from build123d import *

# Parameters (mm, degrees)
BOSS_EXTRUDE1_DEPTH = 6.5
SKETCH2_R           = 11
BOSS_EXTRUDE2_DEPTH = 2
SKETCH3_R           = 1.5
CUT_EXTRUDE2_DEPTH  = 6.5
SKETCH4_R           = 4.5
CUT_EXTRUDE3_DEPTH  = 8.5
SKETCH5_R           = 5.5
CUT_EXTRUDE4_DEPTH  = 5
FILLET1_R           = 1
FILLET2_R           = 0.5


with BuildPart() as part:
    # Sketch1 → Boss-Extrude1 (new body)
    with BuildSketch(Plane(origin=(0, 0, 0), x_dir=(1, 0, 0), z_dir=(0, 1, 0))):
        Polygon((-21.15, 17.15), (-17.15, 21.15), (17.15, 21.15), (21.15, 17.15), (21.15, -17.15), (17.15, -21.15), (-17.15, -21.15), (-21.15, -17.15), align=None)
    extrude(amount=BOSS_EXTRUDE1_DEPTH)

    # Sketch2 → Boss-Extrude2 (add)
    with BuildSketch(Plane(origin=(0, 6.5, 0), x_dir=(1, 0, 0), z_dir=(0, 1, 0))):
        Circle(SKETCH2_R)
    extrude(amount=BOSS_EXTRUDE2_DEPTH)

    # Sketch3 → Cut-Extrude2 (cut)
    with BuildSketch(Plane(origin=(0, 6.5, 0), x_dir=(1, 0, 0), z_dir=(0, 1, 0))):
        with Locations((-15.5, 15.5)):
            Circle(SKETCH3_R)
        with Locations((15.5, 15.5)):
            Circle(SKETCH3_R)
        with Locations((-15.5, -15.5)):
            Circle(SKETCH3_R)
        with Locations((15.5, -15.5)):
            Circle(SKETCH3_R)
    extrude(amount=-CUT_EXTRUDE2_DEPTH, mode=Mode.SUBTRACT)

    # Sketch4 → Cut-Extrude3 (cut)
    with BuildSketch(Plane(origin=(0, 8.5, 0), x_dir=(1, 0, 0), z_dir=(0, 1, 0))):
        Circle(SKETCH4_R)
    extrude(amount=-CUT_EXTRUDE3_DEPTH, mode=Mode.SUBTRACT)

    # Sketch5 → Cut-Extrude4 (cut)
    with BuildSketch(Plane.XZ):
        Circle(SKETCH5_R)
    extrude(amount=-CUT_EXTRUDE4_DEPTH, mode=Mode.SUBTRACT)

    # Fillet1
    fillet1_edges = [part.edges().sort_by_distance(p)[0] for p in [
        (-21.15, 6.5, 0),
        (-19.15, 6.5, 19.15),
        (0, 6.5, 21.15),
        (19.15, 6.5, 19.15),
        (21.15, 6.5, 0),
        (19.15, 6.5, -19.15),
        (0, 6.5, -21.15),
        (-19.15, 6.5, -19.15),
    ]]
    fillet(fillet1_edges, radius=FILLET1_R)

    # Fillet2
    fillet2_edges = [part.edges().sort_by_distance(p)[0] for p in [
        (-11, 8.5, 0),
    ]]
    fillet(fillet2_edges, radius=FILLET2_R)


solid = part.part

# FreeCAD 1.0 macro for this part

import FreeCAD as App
import Part
import Sketcher

V = App.Vector
Q = App.Units.Quantity


def edges_at(feature, points):
    """Names of the edges that pass closest to the given points."""
    edges = feature.Shape.Edges
    near = lambda p: min(range(len(edges)), key=lambda i: edges[i].distToShape(Part.Vertex(*p))[0])
    return sorted({f"Edge{near(p) + 1}" for p in points})

doc = App.newDocument("Part")
params = doc.addObject("Spreadsheet::Sheet", "Params")
for row, (alias, value) in enumerate([
    ("sketch1_width", "34.3 mm"),
    ("pad1_length", "6.5 mm"),
    ("sketch2_diameter", "22 mm"),
    ("pad2_length", "2 mm"),
    ("sketch3_diameter", "3 mm"),
    ("pocket1_length", "6.5 mm"),
    ("sketch4_diameter", "9 mm"),
    ("pocket2_length", "8.5 mm"),
    ("sketch5_diameter", "11 mm"),
    ("pocket3_length", "5 mm"),
    ("fillet_radius", "1 mm"),
    ("fillet2_radius", "0.5 mm"),
], start=1):
    params.set(f"A{row}", alias)
    params.set(f"B{row}", "=" + value)
    params.setAlias(f"B{row}", alias)

body = doc.addObject("PartDesign::Body", "Body")

# Sketch on XZ plane
sketch1 = body.newObject("Sketcher::SketchObject", "Sketch")
sketch1.AttachmentSupport = (doc.getObject("XZ_Plane"), [""])
sketch1.MapMode = "FlatFace"
sketch1.addGeometry([
    Part.LineSegment(V(-17.15, -21.15, 0), V(-21.15, -17.15, 0)),  # 0
    Part.LineSegment(V(-21.15, -17.15, 0), V(-21.15, 17.15, 0)),  # 1
    Part.LineSegment(V(-21.15, 17.15, 0), V(-17.15, 21.15, 0)),  # 2
    Part.LineSegment(V(-17.15, 21.15, 0), V(17.15, 21.15, 0)),  # 3
    Part.LineSegment(V(17.15, 21.15, 0), V(21.15, 17.15, 0)),  # 4
    Part.LineSegment(V(21.15, 17.15, 0), V(21.15, -17.15, 0)),  # 5
    Part.LineSegment(V(21.15, -17.15, 0), V(17.15, -21.15, 0)),  # 6
    Part.LineSegment(V(17.15, -21.15, 0), V(-17.15, -21.15, 0)),  # 7
], False)
sketch1.addConstraint([
    Sketcher.Constraint("Coincident", 0, 2, 1, 1),
    Sketcher.Constraint("Coincident", 1, 2, 2, 1),
    Sketcher.Constraint("Coincident", 2, 2, 3, 1),
    Sketcher.Constraint("Coincident", 3, 2, 4, 1),
    Sketcher.Constraint("Coincident", 4, 2, 5, 1),
    Sketcher.Constraint("Coincident", 5, 2, 6, 1),
    Sketcher.Constraint("Coincident", 6, 2, 7, 1),
    Sketcher.Constraint("Coincident", 7, 2, 0, 1),
    Sketcher.Constraint("Vertical", 1),
    Sketcher.Constraint("Horizontal", 3),
    Sketcher.Constraint("Vertical", 5),
    Sketcher.Constraint("Horizontal", 7),
    Sketcher.Constraint("Symmetric", 0, 2, 4, 2, -1, 1),
    Sketcher.Constraint("Symmetric", 2, 2, 6, 2, -1, 1),
    Sketcher.Constraint("Perpendicular", 0, 2),
    Sketcher.Constraint("Perpendicular", 2, 4),
    Sketcher.Constraint("Perpendicular", 4, 6),
    Sketcher.Constraint("Horizontal", 1, 2, 4, 2),
    Sketcher.Constraint("Vertical", 3, 2, 6, 2),
    Sketcher.Constraint("Equal", 7, 1),
    Sketcher.Constraint("DistanceX", 3, 1, 3, 2, Q("34.3 mm")),
    Sketcher.Constraint("DistanceX", 1, 2, 2, 2, Q("4 mm")),
])
sketch1.setExpression("Constraints[20]", "Params.sketch1_width")
pad1 = body.newObject("PartDesign::Pad", "Pad")
pad1.Profile = sketch1
pad1.setExpression("Length", "Params.pad1_length")
pad1.Reversed = True

# Sketch on XZ plane
sketch2 = body.newObject("Sketcher::SketchObject", "Sketch001")
sketch2.AttachmentSupport = (doc.getObject("XZ_Plane"), [""])
sketch2.MapMode = "FlatFace"
sketch2.AttachmentOffset = App.Placement(V(0, 0, -6.5), App.Rotation())
sketch2.addGeometry(Part.Circle(V(0, 0, 0), V(0, 0, 1), 11), False)
sketch2.addConstraint([
    Sketcher.Constraint("Coincident", 0, 3, -1, 1),
    Sketcher.Constraint("Diameter", 0, Q("22 mm")),
])
sketch2.setExpression("Constraints[1]", "Params.sketch2_diameter")
pad2 = body.newObject("PartDesign::Pad", "Pad001")
pad2.Profile = sketch2
pad2.setExpression("Length", "Params.pad2_length")
pad2.Reversed = True

# Sketch on XZ plane
sketch3 = body.newObject("Sketcher::SketchObject", "Sketch002")
sketch3.AttachmentSupport = (doc.getObject("XZ_Plane"), [""])
sketch3.MapMode = "FlatFace"
sketch3.AttachmentOffset = App.Placement(V(0, 0, -6.5), App.Rotation())
sketch3.addGeometry([
    Part.Circle(V(-15.5, -15.5, 0), V(0, 0, 1), 1.5),
    Part.Circle(V(15.5, -15.5, 0), V(0, 0, 1), 1.5),
    Part.Circle(V(-15.5, 15.5, 0), V(0, 0, 1), 1.5),
    Part.Circle(V(15.5, 15.5, 0), V(0, 0, 1), 1.5),
], False)
sketch3.addConstraint([
    Sketcher.Constraint("Equal", 0, 1),
    Sketcher.Constraint("Equal", 1, 2),
    Sketcher.Constraint("Equal", 2, 3),
    Sketcher.Constraint("Symmetric", 1, 3, 2, 3, -1, 1),
    Sketcher.Constraint("Symmetric", 0, 3, 3, 3, -1, 1),
    Sketcher.Constraint("Symmetric", 0, 3, 1, 3, -2),
    Sketcher.Constraint("Diameter", 0, Q("3 mm")),
    Sketcher.Constraint("DistanceX", 0, 3, 1, 3, Q("31 mm")),
    Sketcher.Constraint("DistanceY", 0, 3, 2, 3, Q("31 mm")),
])
sketch3.setExpression("Constraints[6]", "Params.sketch3_diameter")
pocket1 = body.newObject("PartDesign::Pocket", "Pocket")
pocket1.Profile = sketch3
pocket1.setExpression("Length", "Params.pocket1_length")
pocket1.Reversed = True

# Sketch on XZ plane
sketch4 = body.newObject("Sketcher::SketchObject", "Sketch003")
sketch4.AttachmentSupport = (doc.getObject("XZ_Plane"), [""])
sketch4.MapMode = "FlatFace"
sketch4.AttachmentOffset = App.Placement(V(0, 0, -8.5), App.Rotation())
sketch4.addGeometry(Part.Circle(V(0, 0, 0), V(0, 0, 1), 4.5), False)
sketch4.addConstraint([
    Sketcher.Constraint("Coincident", 0, 3, -1, 1),
    Sketcher.Constraint("Diameter", 0, Q("9 mm")),
])
sketch4.setExpression("Constraints[1]", "Params.sketch4_diameter")
pocket2 = body.newObject("PartDesign::Pocket", "Pocket001")
pocket2.Profile = sketch4
pocket2.setExpression("Length", "Params.pocket2_length")
pocket2.Reversed = True

# Sketch on XZ plane
sketch5 = body.newObject("Sketcher::SketchObject", "Sketch004")
sketch5.AttachmentSupport = (doc.getObject("XZ_Plane"), [""])
sketch5.MapMode = "FlatFace"
sketch5.addGeometry(Part.Circle(V(0, 0, 0), V(0, 0, 1), 5.5), False)
sketch5.addConstraint([
    Sketcher.Constraint("Coincident", 0, 3, -1, 1),
    Sketcher.Constraint("Diameter", 0, Q("11 mm")),
])
sketch5.setExpression("Constraints[1]", "Params.sketch5_diameter")
pocket3 = body.newObject("PartDesign::Pocket", "Pocket002")
pocket3.Profile = sketch5
pocket3.setExpression("Length", "Params.pocket3_length")
doc.recompute()

fillet = body.newObject("PartDesign::Fillet", "Fillet")
fillet.Base = (pocket3, edges_at(pocket3, [
    (-21.15, 6.5, 0),
    (-19.15, 6.5, 19.15),
    (0, 6.5, 21.15),
    (19.15, 6.5, 19.15),
    (21.15, 6.5, 0),
    (19.15, 6.5, -19.15),
    (0, 6.5, -21.15),
    (-19.15, 6.5, -19.15),
]))
fillet.setExpression("Radius", "Params.fillet_radius")
doc.recompute()

fillet2 = body.newObject("PartDesign::Fillet", "Fillet001")
fillet2.Base = (fillet, edges_at(fillet, [(-11, 8.5, 0)]))
fillet2.setExpression("Radius", "Params.fillet2_radius")

doc.recompute()
